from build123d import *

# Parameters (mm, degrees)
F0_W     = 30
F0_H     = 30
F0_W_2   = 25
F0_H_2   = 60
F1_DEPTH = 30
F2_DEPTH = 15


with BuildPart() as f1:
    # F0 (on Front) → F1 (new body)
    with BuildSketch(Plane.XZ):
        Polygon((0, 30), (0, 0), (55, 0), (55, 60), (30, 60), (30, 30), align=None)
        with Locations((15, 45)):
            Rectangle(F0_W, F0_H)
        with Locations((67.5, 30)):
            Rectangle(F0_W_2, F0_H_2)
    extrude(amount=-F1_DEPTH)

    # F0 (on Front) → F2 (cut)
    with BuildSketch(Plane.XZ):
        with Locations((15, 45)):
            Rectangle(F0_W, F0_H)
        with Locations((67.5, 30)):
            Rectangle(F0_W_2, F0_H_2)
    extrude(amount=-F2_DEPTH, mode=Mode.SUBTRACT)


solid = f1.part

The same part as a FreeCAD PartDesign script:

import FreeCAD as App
import Part
import Sketcher

V = App.Vector
Q = App.Units.Quantity


def add_polygon(sketch, points):
    """Adds a closed chain of lines whose ends are joined by coincident constraints."""
    first, n = sketch.GeometryCount, len(points)
    for a, b in zip(points, points[1:] + points[:1]):
        sketch.addGeometry(Part.LineSegment(App.Vector(*a, 0), App.Vector(*b, 0)), False)
    for i in range(n):
        sketch.addConstraint(Sketcher.Constraint("Coincident", first + i, 2, first + (i + 1) % n, 1))

doc = App.newDocument("Part")
params = doc.addObject("Spreadsheet::Sheet", "Params")
for row, (alias, value) in enumerate([
    ("sketch1_width", "80 mm"),
    ("sketch1_height", "60 mm"),
    ("pad1_length", "30 mm"),
    ("sketch2_width", "30 mm"),
    ("sketch2_width2", "25 mm"),
    ("sketch2_height", "60 mm"),
    ("pocket1_length", "15 mm"),
], start=1):
    params.set(f"A{row}", alias)
    params.set(f"B{row}", "=" + value)
    params.setAlias(f"B{row}", alias)

body = doc.addObject("PartDesign::Body", "Body")

# Sketch on XZ plane
sketch1 = body.newObject("Sketcher::SketchObject", "Sketch")
sketch1.AttachmentSupport = (doc.getObject("XZ_Plane"), [""])
sketch1.MapMode = "FlatFace"
add_polygon(sketch1, [(0, 0), (80, 0), (80, 60), (0, 60)])  # lines 0-3
sketch1.addConstraint([
    Sketcher.Constraint("Horizontal", 0),
    Sketcher.Constraint("Vertical", 1),
    Sketcher.Constraint("Horizontal", 2),
    Sketcher.Constraint("Vertical", 3),
    Sketcher.Constraint("Coincident", 3, 2, -1, 1),
    Sketcher.Constraint("DistanceX", 0, 1, 0, 2, Q("80 mm")),
    Sketcher.Constraint("DistanceY", 1, 1, 1, 2, Q("60 mm")),
])
sketch1.setExpression("Constraints[9]", "Params.sketch1_width")
sketch1.setExpression("Constraints[10]", "Params.sketch1_height")
pad1 = body.newObject("PartDesign::Pad", "Pad")
pad1.Profile = sketch1
pad1.setExpression("Length", "Params.pad1_length")
pad1.Reversed = True

# Sketch on XZ plane
sketch2 = body.newObject("Sketcher::SketchObject", "Sketch001")
sketch2.AttachmentSupport = (doc.getObject("XZ_Plane"), [""])
sketch2.MapMode = "FlatFace"
add_polygon(sketch2, [(0, 60), (0, 30), (30, 30), (30, 60)])  # lines 0-3
add_polygon(sketch2, [(55, 60), (55, 0), (80, 0), (80, 60)])  # lines 4-7
sketch2.addConstraint([
    Sketcher.Constraint("Vertical", 0),
    Sketcher.Constraint("Horizontal", 1),
    Sketcher.Constraint("Vertical", 2),
    Sketcher.Constraint("Horizontal", 3),
    Sketcher.Constraint("Vertical", 4),
    Sketcher.Constraint("Horizontal", 5),
    Sketcher.Constraint("Vertical", 6),
    Sketcher.Constraint("Horizontal", 7),
    Sketcher.Constraint("PointOnObject", 0, 2, -2),
    Sketcher.Constraint("PointOnObject", 4, 2, -1),
    Sketcher.Constraint("Horizontal", 3, 2, 6, 2),
    Sketcher.Constraint("Equal", 3, 0),
    Sketcher.Constraint("DistanceX", 1, 1, 1, 2, Q("30 mm")),
    Sketcher.Constraint("DistanceX", 5, 1, 5, 2, Q("25 mm")),
    Sketcher.Constraint("DistanceY", 4, 2, 4, 1, Q("60 mm")),
    Sketcher.Constraint("DistanceX", -1, 1, 4, 2, Q("55 mm")),
])
sketch2.setExpression("Constraints[20]", "Params.sketch2_width")
sketch2.setExpression("Constraints[21]", "Params.sketch2_width2")
sketch2.setExpression("Constraints[22]", "Params.sketch2_height")
pocket1 = body.newObject("PartDesign::Pocket", "Pocket")
pocket1.Profile = sketch2
pocket1.setExpression("Length", "Params.pocket1_length")

doc.recompute()
